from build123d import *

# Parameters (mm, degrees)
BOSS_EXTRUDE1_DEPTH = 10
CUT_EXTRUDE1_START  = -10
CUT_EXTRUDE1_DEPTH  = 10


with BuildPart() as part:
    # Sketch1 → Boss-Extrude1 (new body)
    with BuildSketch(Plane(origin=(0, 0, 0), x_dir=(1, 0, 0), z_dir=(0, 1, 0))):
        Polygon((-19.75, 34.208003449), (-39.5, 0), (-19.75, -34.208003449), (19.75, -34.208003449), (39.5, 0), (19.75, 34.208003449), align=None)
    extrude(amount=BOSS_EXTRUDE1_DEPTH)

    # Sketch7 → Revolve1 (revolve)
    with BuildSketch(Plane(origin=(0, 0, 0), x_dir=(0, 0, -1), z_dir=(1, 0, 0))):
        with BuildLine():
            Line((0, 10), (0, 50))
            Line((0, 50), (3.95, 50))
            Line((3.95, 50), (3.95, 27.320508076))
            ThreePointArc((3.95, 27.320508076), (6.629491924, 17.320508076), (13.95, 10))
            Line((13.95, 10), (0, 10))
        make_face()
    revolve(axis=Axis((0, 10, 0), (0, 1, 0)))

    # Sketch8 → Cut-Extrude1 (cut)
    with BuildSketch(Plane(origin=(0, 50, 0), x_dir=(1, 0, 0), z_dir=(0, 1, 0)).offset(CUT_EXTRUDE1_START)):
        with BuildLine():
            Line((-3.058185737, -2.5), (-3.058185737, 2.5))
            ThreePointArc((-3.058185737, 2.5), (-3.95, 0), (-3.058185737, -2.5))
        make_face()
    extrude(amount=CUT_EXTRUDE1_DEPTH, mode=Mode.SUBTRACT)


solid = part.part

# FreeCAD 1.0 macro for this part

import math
import FreeCAD as App
import Part
import Sketcher
from FreeCAD import Vector
Q = App.Units.Quantity


def add_polygon(sketch, points):
    """Adds a closed chain of lines whose ends are joined by coincident constraints."""
    first, n = sketch.GeometryCount, len(points)
    for a, b in zip(points, points[1:] + points[:1]):
        sketch.addGeometry(Part.LineSegment(App.Vector(*a, 0), App.Vector(*b, 0)), False)
    for i in range(n):
        sketch.addConstraint(Sketcher.Constraint("Coincident", first + i, 2, first + (i + 1) % n, 1))

doc = App.newDocument("Part")
body = doc.addObject("PartDesign::Body", "Body")

# Sketch on XZ plane
sketch1 = doc.addObject("Sketcher::SketchObject", "Sketch")
body.addObject(sketch1)
sketch1.AttachmentSupport = (doc.XZ_Plane, [""])
sketch1.MapMode = "FlatFace"
add_polygon(sketch1, [(-20, -34), (-40, 0), (-20, 34), (20, 34), (40, 0), (20, -34)])  # lines 0-5
sketch1.addConstraint([
    Sketcher.Constraint("Horizontal", 2),
    Sketcher.Constraint("Horizontal", 5),
    Sketcher.Constraint("Symmetric", 0, 2, 3, 2, -1, 1),
    Sketcher.Constraint("Symmetric", 1, 2, 4, 2, -1, 1),
    Sketcher.Constraint("PointOnObject", 0, 2, -1),
    Sketcher.Constraint("Parallel", 0, 3),
    Sketcher.Constraint("Vertical", 2, 2, 4, 2),
    Sketcher.Constraint("Angle", 0, Q("120 deg")),
    Sketcher.Constraint("DistanceX", 2, 1, 2, 2, 39.5),
    Sketcher.Constraint("DistanceX", 0, 2, 3, 2, 79.0),
])
pad1 = doc.addObject("PartDesign::Pad", "Pad")
body.addObject(pad1)
pad1.Profile = sketch1
pad1.Length = 10
pad1.Reversed = True

# Sketch on YZ plane
sketch2 = doc.addObject("Sketcher::SketchObject", "Sketch001")
body.addObject(sketch2)
sketch2.AttachmentSupport = (doc.YZ_Plane, [""])
sketch2.MapMode = "FlatFace"
sketch2.addGeometry([
    Part.LineSegment(Vector(50, 0, 0), Vector(10, 0, 0)),  # 0
    Part.LineSegment(Vector(10, 0, 0), Vector(10, -13.9, 0)),  # 1
    Part.ArcOfCircle(Part.Circle(Vector(27.3, -23.9, 0), Vector(0, 0, 1), 20), math.radians(90), math.radians(150)),  # 2
    Part.LineSegment(Vector(27.3, -4, 0), Vector(50, -4, 0)),  # 3
    Part.LineSegment(Vector(50, -4, 0), Vector(50, 0, 0)),  # 4
], False)
sketch2.addConstraint([
    Sketcher.Constraint("Coincident", 0, 2, 1, 1),
    Sketcher.Constraint("Coincident", 1, 2, 2, 2),
    Sketcher.Constraint("Tangent", 2, 1, 3, 1),
    Sketcher.Constraint("Coincident", 3, 2, 4, 1),
    Sketcher.Constraint("Coincident", 4, 2, 0, 1),
    Sketcher.Constraint("Horizontal", 0),
    Sketcher.Constraint("Vertical", 1),
    Sketcher.Constraint("Horizontal", 3),
    Sketcher.Constraint("Vertical", 4),
    Sketcher.Constraint("PointOnObject", 0, 2, -1),
    Sketcher.Constraint("Radius", 2, 20.0),
    Sketcher.Constraint("DistanceX", 0, 2, 0, 1, 40.0),
    Sketcher.Constraint("DistanceX", -1, 1, 0, 2, 10.0),
    Sketcher.Constraint("DistanceY", 2, 3, 1, 2, 10.0),
    Sketcher.Constraint("DistanceY", 1, 2, 1, 1, 13.95),
])
revolution = doc.addObject("PartDesign::Revolution", "Revolution")
body.addObject(revolution)
revolution.Profile = sketch2
revolution.ReferenceAxis = (sketch2, ["H_Axis"])
revolution.Angle = 360

# Sketch on XZ plane
sketch3 = doc.addObject("Sketcher::SketchObject", "Sketch002")
body.addObject(sketch3)
sketch3.AttachmentSupport = (doc.XZ_Plane, [""])
sketch3.MapMode = "FlatFace"
sketch3.AttachmentOffset = App.Placement(Vector(0, 0, -40), App.Rotation())
sketch3.addGeometry([
    Part.LineSegment(Vector(-3.1, 2.5, 0), Vector(-3.1, -2.5, 0)),
    Part.ArcOfCircle(Part.Circle(Vector(0, 0, 0), Vector(0, 0, 1), 4), math.radians(141), math.radians(219)),
], False)
sketch3.addConstraint([
    Sketcher.Constraint("Coincident", 0, 1, 1, 1),
    Sketcher.Constraint("Coincident", 1, 2, 0, 2),
    Sketcher.Constraint("Vertical", 0),
    Sketcher.Constraint("Coincident", 1, 3, -1, 1),
    Sketcher.Constraint("DistanceY", 0, 2, 0, 1, 5.0),
    Sketcher.Constraint("Radius", 1, 3.95),
])
pocket1 = doc.addObject("PartDesign::Pocket", "Pocket")
body.addObject(pocket1)
pocket1.Profile = sketch3
pocket1.Length = 10

doc.recompute()
